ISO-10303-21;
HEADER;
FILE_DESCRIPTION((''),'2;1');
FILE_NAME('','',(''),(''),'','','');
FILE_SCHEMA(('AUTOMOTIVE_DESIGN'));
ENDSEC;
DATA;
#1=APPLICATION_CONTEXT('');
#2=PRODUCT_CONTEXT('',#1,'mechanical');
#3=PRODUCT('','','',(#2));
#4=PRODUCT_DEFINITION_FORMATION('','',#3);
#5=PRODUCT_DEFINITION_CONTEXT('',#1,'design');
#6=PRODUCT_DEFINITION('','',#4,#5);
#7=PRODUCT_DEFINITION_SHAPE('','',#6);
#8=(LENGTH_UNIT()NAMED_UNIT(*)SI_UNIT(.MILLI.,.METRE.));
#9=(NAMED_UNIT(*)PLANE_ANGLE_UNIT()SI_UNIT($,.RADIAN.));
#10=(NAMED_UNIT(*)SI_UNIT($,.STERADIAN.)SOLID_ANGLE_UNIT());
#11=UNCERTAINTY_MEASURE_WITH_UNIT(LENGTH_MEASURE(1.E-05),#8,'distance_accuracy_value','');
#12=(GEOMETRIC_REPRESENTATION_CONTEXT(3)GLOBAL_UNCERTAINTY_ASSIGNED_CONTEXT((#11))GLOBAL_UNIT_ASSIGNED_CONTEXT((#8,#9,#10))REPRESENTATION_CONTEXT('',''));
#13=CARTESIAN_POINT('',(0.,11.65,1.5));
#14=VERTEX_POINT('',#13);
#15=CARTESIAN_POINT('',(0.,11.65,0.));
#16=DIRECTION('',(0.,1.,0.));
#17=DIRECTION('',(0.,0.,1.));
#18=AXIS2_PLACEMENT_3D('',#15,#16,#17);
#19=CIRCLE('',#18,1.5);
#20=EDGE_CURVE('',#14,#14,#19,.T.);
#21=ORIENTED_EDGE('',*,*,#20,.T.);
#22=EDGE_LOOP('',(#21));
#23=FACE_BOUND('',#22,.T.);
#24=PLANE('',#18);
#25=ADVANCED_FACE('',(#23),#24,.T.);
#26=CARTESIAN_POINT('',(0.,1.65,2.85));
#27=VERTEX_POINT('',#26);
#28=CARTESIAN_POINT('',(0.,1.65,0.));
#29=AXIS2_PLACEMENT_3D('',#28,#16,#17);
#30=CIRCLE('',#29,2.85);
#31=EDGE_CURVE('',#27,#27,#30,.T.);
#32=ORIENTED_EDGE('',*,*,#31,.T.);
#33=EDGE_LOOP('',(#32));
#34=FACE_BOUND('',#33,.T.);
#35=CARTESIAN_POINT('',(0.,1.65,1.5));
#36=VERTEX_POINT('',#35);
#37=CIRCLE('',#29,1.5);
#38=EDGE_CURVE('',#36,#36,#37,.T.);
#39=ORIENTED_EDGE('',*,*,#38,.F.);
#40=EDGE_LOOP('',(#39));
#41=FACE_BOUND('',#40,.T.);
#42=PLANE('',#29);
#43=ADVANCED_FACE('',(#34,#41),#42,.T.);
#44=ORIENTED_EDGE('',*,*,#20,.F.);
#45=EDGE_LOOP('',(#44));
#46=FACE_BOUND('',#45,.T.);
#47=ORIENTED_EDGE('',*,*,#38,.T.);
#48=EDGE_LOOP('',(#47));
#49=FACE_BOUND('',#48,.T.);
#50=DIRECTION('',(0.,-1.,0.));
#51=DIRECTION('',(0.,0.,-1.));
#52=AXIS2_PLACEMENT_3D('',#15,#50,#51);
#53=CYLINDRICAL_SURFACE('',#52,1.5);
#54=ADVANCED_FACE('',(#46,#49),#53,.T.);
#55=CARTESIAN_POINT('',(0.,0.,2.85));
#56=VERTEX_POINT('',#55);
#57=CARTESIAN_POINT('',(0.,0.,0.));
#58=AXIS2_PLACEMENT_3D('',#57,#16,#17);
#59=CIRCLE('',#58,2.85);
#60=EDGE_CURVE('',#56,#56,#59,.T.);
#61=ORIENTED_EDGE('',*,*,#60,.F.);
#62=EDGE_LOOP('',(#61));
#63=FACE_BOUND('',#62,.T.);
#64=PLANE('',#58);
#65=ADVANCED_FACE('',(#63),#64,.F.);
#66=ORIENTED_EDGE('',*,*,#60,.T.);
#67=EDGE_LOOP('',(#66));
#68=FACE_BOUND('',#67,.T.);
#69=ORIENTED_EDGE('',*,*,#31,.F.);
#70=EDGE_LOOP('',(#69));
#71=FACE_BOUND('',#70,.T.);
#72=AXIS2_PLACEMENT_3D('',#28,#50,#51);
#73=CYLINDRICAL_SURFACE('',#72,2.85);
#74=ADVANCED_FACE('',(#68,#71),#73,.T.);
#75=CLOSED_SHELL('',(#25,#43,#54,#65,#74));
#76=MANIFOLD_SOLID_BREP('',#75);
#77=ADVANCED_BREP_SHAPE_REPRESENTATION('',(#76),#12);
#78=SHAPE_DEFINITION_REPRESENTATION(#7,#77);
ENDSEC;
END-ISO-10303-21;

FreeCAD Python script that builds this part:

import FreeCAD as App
import Part
import Sketcher

V = App.Vector

doc = App.newDocument("Part")
body = doc.addObject("PartDesign::Body", "Body")

# Sketch on XZ plane
sketch1 = doc.addObject("Sketcher::SketchObject", "Sketch")
body.addObject(sketch1)
sketch1.AttachmentSupport = (doc.XZ_Plane, [""])
sketch1.MapMode = "FlatFace"
sketch1.addGeometry(Part.Circle(V(0, 0, 0), V(0, 0, 1), 2.9), False)
sketch1.addConstraint(Sketcher.Constraint("Coincident", 0, 3, -1, 1))
sketch1.addConstraint(Sketcher.Constraint("Diameter", 0, 5.7))
pad1 = doc.addObject("PartDesign::Pad", "Pad")
body.addObject(pad1)
pad1.Profile = sketch1
pad1.Length = 1.65
pad1.Reversed = True

# Sketch on XZ plane
sketch2 = doc.addObject("Sketcher::SketchObject", "Sketch001")
body.addObject(sketch2)
sketch2.AttachmentSupport = (doc.XZ_Plane, [""])
sketch2.MapMode = "FlatFace"
sketch2.AttachmentOffset = App.Placement(V(0, 0, -1.65), App.Rotation())
sketch2.addGeometry(Part.Circle(V(0, 0, 0), V(0, 0, 1), 1.5), False)
sketch2.addConstraint(Sketcher.Constraint("Coincident", 0, 3, -1, 1))
sketch2.addConstraint(Sketcher.Constraint("Diameter", 0, 3.0))
pad2 = doc.addObject("PartDesign::Pad", "Pad001")
body.addObject(pad2)
pad2.Profile = sketch2
pad2.Length = 10
pad2.Reversed = True

doc.recompute()
